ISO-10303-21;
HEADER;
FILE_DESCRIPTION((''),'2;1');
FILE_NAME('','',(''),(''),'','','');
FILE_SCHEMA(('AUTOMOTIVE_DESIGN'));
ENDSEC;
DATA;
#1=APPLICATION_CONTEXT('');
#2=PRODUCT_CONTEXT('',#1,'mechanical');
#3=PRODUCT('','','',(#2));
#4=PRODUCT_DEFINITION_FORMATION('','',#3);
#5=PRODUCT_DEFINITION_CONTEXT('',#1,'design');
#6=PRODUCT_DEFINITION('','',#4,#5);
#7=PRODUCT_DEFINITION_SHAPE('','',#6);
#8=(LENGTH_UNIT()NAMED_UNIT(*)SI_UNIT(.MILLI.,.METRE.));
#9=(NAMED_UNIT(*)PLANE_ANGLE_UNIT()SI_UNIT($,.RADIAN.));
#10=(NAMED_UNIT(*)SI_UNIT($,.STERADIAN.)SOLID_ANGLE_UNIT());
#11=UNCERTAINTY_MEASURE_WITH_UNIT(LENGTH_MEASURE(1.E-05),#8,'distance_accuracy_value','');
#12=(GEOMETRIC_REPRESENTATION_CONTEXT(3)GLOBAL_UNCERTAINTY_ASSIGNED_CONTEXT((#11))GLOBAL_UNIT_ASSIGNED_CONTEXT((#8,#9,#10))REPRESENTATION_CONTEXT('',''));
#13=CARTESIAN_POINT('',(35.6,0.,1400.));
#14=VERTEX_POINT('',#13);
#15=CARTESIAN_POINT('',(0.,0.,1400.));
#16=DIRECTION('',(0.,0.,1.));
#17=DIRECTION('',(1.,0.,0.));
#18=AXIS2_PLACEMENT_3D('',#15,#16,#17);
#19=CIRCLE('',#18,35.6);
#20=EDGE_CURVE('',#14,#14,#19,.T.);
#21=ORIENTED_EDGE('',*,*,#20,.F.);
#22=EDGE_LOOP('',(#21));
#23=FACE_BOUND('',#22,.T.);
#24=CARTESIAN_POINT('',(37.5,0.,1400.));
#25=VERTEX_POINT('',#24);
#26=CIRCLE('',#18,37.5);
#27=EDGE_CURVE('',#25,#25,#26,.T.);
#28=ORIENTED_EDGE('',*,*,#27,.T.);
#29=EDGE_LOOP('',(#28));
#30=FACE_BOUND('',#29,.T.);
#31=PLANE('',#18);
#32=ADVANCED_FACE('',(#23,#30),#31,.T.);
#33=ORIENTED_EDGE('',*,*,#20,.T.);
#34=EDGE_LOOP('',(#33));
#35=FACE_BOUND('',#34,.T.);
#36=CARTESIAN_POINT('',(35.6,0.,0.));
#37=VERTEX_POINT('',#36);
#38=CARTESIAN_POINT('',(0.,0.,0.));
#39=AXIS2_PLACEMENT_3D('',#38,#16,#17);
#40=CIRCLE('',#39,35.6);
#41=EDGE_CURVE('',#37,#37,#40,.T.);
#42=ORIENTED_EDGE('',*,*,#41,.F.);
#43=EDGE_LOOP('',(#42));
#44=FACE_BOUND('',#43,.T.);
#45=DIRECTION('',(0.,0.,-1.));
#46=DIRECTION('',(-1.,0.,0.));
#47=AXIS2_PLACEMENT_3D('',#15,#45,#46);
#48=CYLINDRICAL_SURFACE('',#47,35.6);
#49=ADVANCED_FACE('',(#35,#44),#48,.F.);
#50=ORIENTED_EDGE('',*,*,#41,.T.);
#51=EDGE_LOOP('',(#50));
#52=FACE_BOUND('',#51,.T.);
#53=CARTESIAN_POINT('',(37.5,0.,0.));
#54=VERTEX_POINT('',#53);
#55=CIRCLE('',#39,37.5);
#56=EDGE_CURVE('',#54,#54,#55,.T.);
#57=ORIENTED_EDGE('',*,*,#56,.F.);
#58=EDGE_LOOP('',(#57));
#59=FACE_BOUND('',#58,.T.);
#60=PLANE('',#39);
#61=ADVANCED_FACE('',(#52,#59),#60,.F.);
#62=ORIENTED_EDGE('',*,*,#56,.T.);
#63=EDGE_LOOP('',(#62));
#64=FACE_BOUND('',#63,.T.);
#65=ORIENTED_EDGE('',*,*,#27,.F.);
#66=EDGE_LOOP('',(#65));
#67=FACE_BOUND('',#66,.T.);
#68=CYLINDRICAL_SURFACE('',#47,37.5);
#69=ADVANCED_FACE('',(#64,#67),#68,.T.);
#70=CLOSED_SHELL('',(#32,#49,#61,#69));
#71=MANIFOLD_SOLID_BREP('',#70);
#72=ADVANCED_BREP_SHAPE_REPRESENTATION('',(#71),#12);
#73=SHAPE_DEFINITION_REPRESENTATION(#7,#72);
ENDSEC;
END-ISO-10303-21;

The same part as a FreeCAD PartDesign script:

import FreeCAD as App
import Part
import Sketcher


def faces_at(feature, points):
    """Names of the faces that lie closest to the given points."""
    faces = feature.Shape.Faces
    near = lambda p: min(range(len(faces)), key=lambda i: faces[i].distToShape(Part.Vertex(*p))[0])
    return sorted({f"Face{near(p) + 1}" for p in points})

doc = App.newDocument("Part")
body = doc.addObject("PartDesign::Body", "Body")

# Sketch on XY plane
sketch1 = body.newObject("Sketcher::SketchObject", "Sketch")
sketch1.AttachmentSupport = (doc.getObject("XY_Plane"), [""])
sketch1.MapMode = "FlatFace"
sketch1.addGeometry(Part.Circle(App.Vector(0, 0, 0), App.Vector(0, 0, 1), 38), False)
sketch1.addConstraint([
    Sketcher.Constraint("Coincident", 0, 3, -1, 1),
    Sketcher.Constraint("Diameter", 0, 75.0),
])
pad1 = body.newObject("PartDesign::Pad", "Pad")
pad1.Profile = sketch1
pad1.Length = 1400
doc.recompute()

thickness = body.newObject("PartDesign::Thickness", "Thickness")
thickness.Base = (pad1, faces_at(pad1, [(0, 0, 1400), (0, 0, 0)]))
thickness.Value = 1.9
thickness.Reversed = True
thickness.Join = "Intersection"

doc.recompute()
